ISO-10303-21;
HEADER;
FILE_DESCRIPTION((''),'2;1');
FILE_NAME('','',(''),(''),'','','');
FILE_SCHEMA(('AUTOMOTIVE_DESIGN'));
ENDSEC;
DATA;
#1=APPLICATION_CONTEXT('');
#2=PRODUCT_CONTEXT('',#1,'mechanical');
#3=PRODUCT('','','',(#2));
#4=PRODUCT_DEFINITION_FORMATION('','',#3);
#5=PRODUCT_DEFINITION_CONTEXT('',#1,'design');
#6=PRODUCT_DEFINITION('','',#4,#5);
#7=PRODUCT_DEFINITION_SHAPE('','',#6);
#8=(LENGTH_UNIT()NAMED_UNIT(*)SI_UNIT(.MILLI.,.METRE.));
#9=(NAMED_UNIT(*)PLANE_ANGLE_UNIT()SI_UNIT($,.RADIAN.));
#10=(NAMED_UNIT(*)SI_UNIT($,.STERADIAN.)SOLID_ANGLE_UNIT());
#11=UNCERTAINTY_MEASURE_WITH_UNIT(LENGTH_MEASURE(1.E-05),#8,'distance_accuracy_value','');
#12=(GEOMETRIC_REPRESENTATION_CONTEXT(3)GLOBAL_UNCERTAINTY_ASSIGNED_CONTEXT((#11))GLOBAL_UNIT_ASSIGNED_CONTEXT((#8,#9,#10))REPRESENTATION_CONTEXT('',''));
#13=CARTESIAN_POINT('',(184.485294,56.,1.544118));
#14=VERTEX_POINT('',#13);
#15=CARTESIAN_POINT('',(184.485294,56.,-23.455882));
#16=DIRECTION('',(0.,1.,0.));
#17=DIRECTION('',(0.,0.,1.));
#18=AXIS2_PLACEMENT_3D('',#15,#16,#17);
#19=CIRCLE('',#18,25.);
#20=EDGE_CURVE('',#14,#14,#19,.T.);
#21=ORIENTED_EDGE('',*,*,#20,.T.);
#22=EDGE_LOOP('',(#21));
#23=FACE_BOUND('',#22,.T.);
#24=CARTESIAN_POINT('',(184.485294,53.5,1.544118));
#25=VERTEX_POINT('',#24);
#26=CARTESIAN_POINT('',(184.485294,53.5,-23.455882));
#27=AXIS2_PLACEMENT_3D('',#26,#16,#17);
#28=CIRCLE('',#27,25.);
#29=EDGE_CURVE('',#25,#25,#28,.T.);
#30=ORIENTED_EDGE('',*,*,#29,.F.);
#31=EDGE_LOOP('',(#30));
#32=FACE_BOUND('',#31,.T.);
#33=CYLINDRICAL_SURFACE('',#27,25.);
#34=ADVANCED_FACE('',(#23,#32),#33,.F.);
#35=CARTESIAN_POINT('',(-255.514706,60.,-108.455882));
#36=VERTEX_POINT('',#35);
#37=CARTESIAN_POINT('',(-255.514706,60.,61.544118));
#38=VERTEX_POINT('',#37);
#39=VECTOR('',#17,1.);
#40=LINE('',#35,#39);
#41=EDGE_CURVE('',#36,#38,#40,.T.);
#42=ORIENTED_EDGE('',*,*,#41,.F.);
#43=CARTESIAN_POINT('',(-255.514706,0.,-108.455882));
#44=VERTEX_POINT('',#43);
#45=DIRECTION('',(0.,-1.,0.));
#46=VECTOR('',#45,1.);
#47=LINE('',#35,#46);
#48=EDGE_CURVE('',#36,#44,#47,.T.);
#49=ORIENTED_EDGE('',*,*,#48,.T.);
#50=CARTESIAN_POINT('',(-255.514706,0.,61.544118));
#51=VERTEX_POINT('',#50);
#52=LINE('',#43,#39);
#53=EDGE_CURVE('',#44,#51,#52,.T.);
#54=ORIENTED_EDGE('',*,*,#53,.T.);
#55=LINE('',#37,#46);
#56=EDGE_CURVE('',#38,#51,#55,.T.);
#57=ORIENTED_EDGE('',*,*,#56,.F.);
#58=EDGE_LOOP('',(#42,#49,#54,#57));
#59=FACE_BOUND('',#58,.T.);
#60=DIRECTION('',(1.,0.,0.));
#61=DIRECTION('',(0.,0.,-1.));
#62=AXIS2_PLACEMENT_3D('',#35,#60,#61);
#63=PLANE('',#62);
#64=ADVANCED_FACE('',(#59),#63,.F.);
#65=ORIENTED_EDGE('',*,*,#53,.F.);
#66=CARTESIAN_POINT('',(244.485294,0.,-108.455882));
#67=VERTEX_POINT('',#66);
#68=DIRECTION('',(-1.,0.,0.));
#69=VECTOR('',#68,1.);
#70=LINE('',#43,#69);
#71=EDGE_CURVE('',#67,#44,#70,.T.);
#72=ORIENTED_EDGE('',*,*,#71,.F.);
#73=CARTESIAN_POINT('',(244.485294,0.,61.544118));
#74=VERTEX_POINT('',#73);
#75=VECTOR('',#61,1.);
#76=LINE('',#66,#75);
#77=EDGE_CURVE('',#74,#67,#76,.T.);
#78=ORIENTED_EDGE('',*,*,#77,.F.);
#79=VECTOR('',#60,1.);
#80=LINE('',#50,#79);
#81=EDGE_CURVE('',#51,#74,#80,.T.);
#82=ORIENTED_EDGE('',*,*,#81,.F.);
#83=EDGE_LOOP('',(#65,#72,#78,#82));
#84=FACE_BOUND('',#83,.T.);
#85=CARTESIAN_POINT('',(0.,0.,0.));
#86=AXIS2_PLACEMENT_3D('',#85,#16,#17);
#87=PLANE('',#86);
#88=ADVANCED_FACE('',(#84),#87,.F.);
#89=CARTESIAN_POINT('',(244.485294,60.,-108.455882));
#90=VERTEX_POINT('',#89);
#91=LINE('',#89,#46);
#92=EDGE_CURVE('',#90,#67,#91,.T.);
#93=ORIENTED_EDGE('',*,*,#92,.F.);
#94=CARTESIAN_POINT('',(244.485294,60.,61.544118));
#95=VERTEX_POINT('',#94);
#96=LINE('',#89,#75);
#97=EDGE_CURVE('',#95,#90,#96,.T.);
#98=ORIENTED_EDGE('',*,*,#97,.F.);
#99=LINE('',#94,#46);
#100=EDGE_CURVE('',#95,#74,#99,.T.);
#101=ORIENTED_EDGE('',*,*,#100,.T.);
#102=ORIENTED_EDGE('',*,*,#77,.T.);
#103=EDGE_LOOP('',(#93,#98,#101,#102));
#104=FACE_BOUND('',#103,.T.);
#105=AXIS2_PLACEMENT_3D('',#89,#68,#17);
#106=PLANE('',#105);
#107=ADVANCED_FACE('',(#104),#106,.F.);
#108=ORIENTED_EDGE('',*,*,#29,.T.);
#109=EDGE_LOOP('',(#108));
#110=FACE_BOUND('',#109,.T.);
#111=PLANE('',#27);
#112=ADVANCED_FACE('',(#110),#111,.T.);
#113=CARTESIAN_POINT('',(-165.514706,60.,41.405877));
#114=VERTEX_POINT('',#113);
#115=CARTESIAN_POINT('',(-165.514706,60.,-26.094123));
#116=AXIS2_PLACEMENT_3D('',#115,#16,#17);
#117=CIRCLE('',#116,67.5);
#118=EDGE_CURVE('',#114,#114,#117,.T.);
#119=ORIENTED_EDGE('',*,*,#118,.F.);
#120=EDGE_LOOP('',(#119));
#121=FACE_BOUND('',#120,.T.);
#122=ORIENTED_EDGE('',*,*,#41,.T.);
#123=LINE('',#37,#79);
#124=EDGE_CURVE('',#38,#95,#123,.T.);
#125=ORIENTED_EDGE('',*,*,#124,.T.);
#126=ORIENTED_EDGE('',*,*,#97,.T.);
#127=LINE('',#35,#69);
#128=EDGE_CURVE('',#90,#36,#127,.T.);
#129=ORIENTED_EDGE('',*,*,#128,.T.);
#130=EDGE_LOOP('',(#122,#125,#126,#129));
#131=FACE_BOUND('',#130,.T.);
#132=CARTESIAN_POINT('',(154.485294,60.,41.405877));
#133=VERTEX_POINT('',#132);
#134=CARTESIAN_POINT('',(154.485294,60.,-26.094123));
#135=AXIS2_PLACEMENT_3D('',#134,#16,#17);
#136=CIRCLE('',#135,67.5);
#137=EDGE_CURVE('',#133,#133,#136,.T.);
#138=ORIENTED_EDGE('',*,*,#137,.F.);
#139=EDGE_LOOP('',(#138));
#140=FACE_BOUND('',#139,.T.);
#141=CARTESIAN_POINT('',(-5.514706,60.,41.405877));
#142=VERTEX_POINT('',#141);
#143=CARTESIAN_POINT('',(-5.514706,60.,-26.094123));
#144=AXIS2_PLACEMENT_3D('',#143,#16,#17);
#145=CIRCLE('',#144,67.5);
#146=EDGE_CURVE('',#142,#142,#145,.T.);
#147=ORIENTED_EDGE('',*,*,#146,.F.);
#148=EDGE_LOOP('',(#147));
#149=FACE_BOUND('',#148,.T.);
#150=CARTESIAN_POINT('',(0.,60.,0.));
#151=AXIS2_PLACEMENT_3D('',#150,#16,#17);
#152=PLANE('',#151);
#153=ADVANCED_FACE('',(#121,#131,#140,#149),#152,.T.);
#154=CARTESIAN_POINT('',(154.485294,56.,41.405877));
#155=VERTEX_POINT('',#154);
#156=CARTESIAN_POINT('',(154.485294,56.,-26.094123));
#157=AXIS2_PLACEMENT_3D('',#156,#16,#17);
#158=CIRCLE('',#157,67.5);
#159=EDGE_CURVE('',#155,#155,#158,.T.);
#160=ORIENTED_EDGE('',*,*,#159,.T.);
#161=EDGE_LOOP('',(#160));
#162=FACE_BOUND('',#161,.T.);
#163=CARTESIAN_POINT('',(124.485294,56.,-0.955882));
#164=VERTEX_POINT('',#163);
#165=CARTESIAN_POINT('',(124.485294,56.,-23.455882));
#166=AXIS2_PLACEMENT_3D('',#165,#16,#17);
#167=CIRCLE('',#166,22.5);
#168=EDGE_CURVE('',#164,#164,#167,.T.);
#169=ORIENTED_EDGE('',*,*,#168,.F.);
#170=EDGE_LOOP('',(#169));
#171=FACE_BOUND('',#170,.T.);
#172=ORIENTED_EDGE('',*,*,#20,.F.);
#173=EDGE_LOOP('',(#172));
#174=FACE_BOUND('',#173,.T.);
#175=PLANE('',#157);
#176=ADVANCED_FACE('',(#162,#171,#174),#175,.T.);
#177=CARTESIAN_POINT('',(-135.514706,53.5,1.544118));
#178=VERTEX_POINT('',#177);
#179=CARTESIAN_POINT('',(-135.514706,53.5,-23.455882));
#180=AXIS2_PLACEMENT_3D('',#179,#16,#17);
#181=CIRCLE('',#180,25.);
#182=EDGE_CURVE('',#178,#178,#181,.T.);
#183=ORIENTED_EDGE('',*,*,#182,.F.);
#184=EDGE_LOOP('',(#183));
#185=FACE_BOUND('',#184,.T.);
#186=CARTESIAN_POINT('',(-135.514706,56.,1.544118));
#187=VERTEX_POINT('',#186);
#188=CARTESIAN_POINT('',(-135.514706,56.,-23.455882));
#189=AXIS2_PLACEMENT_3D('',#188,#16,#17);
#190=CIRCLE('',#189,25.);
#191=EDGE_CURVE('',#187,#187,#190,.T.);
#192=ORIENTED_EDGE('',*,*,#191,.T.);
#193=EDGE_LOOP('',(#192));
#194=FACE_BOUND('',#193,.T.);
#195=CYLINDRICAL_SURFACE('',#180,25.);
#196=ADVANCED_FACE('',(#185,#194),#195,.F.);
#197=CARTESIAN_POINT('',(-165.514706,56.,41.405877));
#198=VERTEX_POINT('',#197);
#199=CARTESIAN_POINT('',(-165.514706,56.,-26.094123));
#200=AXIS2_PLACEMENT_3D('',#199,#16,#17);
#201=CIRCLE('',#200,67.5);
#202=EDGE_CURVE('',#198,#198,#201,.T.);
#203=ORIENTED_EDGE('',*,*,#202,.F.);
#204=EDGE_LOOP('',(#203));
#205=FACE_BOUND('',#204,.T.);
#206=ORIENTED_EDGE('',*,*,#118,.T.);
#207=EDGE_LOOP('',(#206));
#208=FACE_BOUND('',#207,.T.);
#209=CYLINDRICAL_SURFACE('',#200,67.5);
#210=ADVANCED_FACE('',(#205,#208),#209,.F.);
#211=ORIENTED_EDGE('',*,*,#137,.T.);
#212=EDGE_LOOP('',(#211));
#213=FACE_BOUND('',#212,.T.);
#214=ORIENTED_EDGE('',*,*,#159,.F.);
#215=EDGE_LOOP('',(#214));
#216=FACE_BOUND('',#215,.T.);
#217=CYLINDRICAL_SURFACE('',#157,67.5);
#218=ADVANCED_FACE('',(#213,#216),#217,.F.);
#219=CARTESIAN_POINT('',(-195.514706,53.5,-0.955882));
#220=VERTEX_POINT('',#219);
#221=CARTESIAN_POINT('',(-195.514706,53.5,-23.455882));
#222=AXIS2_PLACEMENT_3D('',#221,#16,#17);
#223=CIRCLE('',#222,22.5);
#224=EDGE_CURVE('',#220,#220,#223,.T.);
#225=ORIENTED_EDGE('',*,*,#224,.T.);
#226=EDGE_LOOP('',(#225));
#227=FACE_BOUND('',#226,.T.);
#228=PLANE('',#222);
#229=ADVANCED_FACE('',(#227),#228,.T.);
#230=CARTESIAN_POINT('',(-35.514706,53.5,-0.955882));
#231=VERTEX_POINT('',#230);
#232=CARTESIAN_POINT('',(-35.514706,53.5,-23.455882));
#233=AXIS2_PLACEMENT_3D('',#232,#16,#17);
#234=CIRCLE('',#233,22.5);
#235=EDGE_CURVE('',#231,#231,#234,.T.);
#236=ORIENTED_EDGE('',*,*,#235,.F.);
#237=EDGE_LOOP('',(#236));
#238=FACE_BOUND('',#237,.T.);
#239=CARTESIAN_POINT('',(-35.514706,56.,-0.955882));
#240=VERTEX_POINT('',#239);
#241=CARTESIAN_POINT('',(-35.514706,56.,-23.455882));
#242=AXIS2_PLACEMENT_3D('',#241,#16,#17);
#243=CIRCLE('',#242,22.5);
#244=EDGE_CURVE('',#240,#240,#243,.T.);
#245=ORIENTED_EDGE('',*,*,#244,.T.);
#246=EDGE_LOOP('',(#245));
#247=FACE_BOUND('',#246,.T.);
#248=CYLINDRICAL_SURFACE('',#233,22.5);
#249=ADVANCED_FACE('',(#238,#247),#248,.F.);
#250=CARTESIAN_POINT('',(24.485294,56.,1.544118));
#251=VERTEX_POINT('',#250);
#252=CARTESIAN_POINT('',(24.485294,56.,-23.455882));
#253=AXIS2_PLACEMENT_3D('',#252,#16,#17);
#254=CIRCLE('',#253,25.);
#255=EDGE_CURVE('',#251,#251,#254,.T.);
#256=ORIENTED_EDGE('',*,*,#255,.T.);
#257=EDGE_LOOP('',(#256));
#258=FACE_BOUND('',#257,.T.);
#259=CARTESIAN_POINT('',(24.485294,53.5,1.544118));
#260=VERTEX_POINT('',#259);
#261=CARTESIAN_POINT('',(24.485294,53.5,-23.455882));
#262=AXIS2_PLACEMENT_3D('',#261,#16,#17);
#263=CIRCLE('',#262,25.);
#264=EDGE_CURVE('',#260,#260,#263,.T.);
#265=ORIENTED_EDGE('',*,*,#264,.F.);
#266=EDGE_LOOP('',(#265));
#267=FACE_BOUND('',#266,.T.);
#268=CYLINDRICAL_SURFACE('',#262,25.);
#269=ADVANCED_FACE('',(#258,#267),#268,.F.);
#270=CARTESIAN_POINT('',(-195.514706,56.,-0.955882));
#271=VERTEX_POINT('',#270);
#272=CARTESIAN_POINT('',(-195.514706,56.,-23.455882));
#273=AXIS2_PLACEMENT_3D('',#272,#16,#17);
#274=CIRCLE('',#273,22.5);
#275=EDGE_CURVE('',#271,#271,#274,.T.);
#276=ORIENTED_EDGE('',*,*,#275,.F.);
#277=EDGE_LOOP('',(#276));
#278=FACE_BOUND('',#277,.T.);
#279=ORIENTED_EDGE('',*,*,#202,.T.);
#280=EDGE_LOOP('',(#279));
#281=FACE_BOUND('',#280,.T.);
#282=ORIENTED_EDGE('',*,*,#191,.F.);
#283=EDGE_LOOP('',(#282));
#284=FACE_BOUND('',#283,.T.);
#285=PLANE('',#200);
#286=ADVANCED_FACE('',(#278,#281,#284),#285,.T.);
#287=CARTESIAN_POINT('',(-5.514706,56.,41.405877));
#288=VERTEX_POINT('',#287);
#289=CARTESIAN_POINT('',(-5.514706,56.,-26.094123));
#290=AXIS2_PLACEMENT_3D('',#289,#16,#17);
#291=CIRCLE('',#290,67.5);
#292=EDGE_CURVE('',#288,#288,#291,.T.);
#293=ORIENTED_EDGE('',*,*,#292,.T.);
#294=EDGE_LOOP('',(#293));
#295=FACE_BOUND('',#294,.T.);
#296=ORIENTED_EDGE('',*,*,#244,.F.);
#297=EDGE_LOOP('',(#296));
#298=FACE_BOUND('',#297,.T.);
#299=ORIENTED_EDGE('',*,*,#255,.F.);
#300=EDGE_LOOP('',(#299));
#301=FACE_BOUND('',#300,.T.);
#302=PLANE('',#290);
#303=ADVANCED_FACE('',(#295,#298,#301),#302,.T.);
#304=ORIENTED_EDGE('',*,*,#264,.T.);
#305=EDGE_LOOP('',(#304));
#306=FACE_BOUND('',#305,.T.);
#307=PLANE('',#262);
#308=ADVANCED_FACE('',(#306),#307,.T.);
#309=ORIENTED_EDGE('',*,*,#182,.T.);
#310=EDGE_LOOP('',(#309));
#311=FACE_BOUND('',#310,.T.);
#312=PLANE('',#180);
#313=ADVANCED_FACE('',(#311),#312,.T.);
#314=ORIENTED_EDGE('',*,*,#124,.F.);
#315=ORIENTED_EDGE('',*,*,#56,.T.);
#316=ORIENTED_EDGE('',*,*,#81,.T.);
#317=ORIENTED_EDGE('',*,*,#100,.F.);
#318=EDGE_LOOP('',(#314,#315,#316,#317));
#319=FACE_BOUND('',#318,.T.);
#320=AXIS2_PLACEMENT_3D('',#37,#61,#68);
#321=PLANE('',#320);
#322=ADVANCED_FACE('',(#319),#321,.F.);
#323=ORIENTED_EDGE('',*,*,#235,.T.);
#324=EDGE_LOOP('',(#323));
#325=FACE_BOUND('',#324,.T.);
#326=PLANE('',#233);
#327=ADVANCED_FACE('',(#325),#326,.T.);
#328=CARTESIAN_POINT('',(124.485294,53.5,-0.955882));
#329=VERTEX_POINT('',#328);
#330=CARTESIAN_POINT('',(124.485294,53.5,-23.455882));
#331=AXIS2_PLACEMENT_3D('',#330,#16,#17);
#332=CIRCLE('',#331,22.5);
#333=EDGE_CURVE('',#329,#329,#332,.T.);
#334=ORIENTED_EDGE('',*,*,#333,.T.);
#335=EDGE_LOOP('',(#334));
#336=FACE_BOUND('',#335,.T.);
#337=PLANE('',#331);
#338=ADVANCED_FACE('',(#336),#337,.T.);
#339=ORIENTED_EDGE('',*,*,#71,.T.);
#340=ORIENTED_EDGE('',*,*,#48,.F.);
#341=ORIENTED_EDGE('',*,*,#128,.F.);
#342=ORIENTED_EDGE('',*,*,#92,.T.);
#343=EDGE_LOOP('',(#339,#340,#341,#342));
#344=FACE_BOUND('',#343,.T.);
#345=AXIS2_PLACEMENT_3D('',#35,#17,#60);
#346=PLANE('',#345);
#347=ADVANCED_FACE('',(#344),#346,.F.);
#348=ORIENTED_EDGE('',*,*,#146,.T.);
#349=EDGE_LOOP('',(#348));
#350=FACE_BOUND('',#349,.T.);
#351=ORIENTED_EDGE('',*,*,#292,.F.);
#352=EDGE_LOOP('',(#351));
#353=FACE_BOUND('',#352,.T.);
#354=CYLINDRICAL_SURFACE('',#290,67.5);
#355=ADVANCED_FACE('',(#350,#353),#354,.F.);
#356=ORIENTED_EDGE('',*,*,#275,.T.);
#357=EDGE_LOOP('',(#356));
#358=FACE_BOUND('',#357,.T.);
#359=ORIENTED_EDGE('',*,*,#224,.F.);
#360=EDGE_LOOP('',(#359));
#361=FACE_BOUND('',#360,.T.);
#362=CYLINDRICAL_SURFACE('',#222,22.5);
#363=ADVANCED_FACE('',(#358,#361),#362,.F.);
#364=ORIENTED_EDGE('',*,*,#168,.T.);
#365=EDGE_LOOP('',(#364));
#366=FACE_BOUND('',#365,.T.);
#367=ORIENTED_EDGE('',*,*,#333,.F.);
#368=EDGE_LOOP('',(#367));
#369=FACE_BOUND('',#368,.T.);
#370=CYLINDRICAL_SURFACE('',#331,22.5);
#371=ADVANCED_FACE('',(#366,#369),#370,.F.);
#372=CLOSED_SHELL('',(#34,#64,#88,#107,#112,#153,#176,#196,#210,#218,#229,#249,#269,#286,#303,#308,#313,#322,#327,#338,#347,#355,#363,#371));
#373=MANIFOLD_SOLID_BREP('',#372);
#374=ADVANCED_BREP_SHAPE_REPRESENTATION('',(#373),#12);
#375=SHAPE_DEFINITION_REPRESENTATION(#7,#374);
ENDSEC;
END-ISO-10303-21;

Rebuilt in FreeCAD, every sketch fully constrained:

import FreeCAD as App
import Part
import Sketcher
Q = App.Units.Quantity


def add_polygon(sketch, points):
    """Adds a closed chain of lines whose ends are joined by coincident constraints."""
    first, n = sketch.GeometryCount, len(points)
    for a, b in zip(points, points[1:] + points[:1]):
        sketch.addGeometry(Part.LineSegment(App.Vector(*a, 0), App.Vector(*b, 0)), False)
    for i in range(n):
        sketch.addConstraint(Sketcher.Constraint("Coincident", first + i, 2, first + (i + 1) % n, 1))

doc = App.newDocument("Part")
body = doc.addObject("PartDesign::Body", "Body")

# Sketch on XZ plane
sketch1 = body.newObject("Sketcher::SketchObject", "Sketch")
sketch1.AttachmentSupport = (doc.getObject("XZ_Plane"), [""])
sketch1.MapMode = "FlatFace"
add_polygon(sketch1, [(-256, -108), (-256, 62), (244, 62), (244, -108)])  # lines 0-3
sketch1.addConstraint([
    Sketcher.Constraint("Vertical", 0),
    Sketcher.Constraint("Horizontal", 1),
    Sketcher.Constraint("Vertical", 2),
    Sketcher.Constraint("Horizontal", 3),
    Sketcher.Constraint("DistanceX", 1, 1, 1, 2, Q("500 mm")),
    Sketcher.Constraint("DistanceY", 0, 1, 0, 2, Q("170 mm")),
    Sketcher.Constraint("DistanceX", 0, 2, -1, 1, Q("255.514706 mm")),
    Sketcher.Constraint("DistanceY", -1, 1, 0, 2, Q("61.544118 mm")),
])
pad1 = body.newObject("PartDesign::Pad", "Pad")
pad1.Profile = sketch1
pad1.Length = 60
pad1.Reversed = True

# Sketch on XZ plane
sketch2 = body.newObject("Sketcher::SketchObject", "Sketch001")
sketch2.AttachmentSupport = (doc.getObject("XZ_Plane"), [""])
sketch2.MapMode = "FlatFace"
sketch2.AttachmentOffset = App.Placement(App.Vector(0, 0, -60), App.Rotation())
sketch2.addGeometry([
    Part.Circle(App.Vector(-6, -26, 0), App.Vector(0, 0, 1), 68),
    Part.Circle(App.Vector(154, -26, 0), App.Vector(0, 0, 1), 68),
    Part.Circle(App.Vector(-166, -26, 0), App.Vector(0, 0, 1), 68),
], False)
sketch2.addConstraint([
    Sketcher.Constraint("Equal", 0, 1),
    Sketcher.Constraint("Equal", 1, 2),
    Sketcher.Constraint("Horizontal", 0, 3, 1, 3),
    Sketcher.Constraint("Horizontal", 1, 3, 2, 3),
    Sketcher.Constraint("Diameter", 0, Q("135 mm")),
    Sketcher.Constraint("DistanceX", 0, 3, 1, 3, Q("160 mm")),
    Sketcher.Constraint("DistanceX", 2, 3, 0, 3, Q("160 mm")),
    Sketcher.Constraint("DistanceX", 0, 3, -1, 1, Q("5.514706 mm")),
    Sketcher.Constraint("DistanceY", 0, 3, -1, 1, Q("26.094123 mm")),
])
pocket1 = body.newObject("PartDesign::Pocket", "Pocket")
pocket1.Profile = sketch2
pocket1.Length = 4
pocket1.Reversed = True

# Sketch on XZ plane
sketch3 = body.newObject("Sketcher::SketchObject", "Sketch002")
sketch3.AttachmentSupport = (doc.getObject("XZ_Plane"), [""])
sketch3.MapMode = "FlatFace"
sketch3.AttachmentOffset = App.Placement(App.Vector(0, 0, -56), App.Rotation())
sketch3.addGeometry([
    Part.Circle(App.Vector(-136, -23, 0), App.Vector(0, 0, 1), 25),  # 0
    Part.Circle(App.Vector(-196, -23, 0), App.Vector(0, 0, 1), 22),  # 1
    Part.Circle(App.Vector(-36, -23, 0), App.Vector(0, 0, 1), 22),  # 2
    Part.Circle(App.Vector(24, -23, 0), App.Vector(0, 0, 1), 25),  # 3
    Part.Circle(App.Vector(124, -23, 0), App.Vector(0, 0, 1), 22),  # 4
    Part.Circle(App.Vector(184, -23, 0), App.Vector(0, 0, 1), 25),  # 5
], False)
sketch3.addConstraint([
    Sketcher.Constraint("Equal", 1, 2),
    Sketcher.Constraint("Equal", 0, 3),
    Sketcher.Constraint("Equal", 2, 4),
    Sketcher.Constraint("Equal", 3, 5),
    Sketcher.Constraint("Horizontal", 0, 3, 1, 3),
    Sketcher.Constraint("Horizontal", 1, 3, 2, 3),
    Sketcher.Constraint("Horizontal", 2, 3, 3, 3),
    Sketcher.Constraint("Horizontal", 3, 3, 4, 3),
    Sketcher.Constraint("Horizontal", 4, 3, 5, 3),
    Sketcher.Constraint("Diameter", 0, Q("50 mm")),
    Sketcher.Constraint("Diameter", 1, Q("45 mm")),
    Sketcher.Constraint("DistanceX", 1, 3, 0, 3, Q("60 mm")),
    Sketcher.Constraint("DistanceX", 0, 3, 2, 3, Q("100 mm")),
    Sketcher.Constraint("DistanceX", 2, 3, 3, 3, Q("60 mm")),
    Sketcher.Constraint("DistanceX", 3, 3, 4, 3, Q("100 mm")),
    Sketcher.Constraint("DistanceX", 4, 3, 5, 3, Q("60 mm")),
    Sketcher.Constraint("DistanceX", 0, 3, -1, 1, Q("135.514706 mm")),
    Sketcher.Constraint("DistanceY", 0, 3, -1, 1, Q("23.455882 mm")),
])
pocket2 = body.newObject("PartDesign::Pocket", "Pocket001")
pocket2.Profile = sketch3
pocket2.Length = 2.5
pocket2.Reversed = True

doc.recompute()
